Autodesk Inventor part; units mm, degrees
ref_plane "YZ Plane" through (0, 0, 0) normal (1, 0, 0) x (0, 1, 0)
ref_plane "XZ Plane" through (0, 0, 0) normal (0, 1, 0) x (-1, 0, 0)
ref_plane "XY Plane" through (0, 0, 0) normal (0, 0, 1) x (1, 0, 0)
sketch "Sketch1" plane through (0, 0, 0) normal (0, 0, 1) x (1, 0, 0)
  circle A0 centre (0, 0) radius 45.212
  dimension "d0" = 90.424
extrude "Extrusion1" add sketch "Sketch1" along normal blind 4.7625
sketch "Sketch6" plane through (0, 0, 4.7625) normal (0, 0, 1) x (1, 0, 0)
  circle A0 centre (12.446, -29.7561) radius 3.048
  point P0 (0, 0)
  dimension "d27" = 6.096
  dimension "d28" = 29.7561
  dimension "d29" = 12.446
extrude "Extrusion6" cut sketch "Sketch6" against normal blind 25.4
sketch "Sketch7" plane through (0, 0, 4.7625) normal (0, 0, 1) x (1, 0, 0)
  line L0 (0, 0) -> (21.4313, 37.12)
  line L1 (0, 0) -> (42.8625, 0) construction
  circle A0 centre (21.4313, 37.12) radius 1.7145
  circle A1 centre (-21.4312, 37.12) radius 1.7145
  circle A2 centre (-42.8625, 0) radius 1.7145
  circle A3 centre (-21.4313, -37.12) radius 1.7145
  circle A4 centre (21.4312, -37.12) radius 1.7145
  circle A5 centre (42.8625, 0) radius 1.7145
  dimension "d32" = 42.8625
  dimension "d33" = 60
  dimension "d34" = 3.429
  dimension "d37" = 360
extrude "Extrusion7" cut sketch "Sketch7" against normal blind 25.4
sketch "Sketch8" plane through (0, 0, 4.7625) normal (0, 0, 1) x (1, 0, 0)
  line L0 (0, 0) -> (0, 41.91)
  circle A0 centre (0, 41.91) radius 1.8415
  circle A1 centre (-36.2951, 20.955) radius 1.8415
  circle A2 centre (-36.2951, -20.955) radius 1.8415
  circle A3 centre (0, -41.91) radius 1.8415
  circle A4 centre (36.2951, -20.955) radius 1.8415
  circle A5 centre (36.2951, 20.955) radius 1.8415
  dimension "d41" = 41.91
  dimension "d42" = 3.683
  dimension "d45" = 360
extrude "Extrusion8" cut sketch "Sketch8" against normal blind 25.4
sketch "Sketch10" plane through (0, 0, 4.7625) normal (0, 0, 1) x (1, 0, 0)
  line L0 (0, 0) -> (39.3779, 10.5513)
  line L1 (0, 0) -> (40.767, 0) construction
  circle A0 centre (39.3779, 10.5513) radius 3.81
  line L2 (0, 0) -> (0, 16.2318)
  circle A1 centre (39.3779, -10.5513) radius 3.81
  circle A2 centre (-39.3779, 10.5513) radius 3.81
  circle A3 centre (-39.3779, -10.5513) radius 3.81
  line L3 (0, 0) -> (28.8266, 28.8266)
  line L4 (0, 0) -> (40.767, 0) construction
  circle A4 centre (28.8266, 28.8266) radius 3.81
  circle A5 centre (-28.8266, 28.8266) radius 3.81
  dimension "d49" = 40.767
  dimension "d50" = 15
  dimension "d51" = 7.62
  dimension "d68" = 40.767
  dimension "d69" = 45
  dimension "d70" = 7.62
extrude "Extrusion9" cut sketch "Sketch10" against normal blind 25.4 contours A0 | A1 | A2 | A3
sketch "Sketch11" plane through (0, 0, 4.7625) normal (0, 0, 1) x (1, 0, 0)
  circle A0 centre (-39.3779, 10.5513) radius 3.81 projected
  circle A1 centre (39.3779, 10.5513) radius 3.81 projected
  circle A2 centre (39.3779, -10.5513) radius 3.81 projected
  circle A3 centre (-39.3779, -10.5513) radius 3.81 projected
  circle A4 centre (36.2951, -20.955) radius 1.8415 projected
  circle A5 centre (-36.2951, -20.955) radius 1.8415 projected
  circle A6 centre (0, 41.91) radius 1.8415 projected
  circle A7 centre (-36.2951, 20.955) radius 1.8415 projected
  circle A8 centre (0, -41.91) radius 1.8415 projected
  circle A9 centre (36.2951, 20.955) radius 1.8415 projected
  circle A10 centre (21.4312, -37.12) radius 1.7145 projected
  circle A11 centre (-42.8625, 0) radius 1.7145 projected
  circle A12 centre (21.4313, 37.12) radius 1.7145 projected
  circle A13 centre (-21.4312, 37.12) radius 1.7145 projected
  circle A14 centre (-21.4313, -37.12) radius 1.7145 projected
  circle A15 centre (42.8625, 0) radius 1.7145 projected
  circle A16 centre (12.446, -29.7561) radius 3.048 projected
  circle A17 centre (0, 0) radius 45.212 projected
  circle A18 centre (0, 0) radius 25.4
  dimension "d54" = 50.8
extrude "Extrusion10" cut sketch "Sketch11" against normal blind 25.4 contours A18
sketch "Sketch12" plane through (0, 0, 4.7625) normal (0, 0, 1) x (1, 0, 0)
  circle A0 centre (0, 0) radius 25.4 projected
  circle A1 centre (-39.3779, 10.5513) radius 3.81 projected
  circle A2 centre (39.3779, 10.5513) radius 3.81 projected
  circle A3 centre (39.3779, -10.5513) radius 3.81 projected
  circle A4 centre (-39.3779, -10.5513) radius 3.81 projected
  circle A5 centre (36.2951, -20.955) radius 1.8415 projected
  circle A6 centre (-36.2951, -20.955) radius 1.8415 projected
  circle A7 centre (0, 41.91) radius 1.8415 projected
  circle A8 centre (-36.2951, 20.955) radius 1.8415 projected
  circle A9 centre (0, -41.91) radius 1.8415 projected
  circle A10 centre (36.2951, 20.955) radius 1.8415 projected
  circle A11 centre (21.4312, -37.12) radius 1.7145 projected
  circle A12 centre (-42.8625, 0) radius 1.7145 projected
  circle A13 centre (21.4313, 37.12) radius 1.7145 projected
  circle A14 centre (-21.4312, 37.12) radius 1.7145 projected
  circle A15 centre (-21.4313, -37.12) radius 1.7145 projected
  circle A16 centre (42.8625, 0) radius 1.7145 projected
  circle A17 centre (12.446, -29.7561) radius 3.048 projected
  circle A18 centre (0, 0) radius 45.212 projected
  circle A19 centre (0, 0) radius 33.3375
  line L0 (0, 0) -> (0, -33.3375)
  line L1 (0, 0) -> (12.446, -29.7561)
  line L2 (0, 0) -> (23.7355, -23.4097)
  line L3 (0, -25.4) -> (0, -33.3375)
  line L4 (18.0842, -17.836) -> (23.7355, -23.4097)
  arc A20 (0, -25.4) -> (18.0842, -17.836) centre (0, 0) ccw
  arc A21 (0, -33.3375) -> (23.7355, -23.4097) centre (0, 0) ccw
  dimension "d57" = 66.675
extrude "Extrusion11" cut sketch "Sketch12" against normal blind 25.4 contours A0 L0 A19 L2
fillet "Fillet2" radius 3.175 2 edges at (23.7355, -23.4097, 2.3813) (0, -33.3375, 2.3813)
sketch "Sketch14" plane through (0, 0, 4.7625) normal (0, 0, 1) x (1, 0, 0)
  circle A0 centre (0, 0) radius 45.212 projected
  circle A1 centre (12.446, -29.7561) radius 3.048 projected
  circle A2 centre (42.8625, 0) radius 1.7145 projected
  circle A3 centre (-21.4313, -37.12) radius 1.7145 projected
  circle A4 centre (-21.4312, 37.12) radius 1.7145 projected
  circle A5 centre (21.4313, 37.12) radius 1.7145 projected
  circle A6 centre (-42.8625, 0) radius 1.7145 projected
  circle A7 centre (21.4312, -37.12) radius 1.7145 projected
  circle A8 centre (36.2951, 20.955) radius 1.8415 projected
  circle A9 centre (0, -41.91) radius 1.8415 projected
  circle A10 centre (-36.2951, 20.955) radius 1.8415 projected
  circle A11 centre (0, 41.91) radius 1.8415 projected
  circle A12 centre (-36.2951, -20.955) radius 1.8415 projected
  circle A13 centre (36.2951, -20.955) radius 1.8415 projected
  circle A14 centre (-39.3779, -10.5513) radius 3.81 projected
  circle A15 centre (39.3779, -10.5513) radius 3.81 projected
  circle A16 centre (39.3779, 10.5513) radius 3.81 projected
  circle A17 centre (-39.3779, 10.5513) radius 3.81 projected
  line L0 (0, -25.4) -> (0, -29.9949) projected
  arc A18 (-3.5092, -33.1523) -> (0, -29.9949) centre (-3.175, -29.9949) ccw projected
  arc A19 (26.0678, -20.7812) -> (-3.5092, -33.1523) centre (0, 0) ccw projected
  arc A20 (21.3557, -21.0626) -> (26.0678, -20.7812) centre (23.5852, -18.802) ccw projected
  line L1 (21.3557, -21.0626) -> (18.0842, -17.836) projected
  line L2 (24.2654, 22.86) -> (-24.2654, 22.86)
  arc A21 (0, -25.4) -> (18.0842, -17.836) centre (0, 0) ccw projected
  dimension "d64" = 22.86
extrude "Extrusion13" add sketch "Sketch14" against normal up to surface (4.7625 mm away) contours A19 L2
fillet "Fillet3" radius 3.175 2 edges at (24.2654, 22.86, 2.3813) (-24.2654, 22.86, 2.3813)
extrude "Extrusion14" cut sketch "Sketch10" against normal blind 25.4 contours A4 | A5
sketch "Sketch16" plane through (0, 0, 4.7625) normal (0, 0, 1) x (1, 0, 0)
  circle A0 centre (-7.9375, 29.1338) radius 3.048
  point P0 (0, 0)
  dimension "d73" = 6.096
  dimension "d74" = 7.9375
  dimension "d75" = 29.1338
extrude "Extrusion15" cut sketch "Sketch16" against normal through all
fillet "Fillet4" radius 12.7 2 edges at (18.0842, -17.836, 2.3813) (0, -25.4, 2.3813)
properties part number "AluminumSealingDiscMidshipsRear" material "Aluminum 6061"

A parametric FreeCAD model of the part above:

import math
import FreeCAD as App
import Part
import Sketcher

V = App.Vector
Q = App.Units.Quantity


def edges_at(feature, points):
    """Names of the edges that pass closest to the given points."""
    edges = feature.Shape.Edges
    near = lambda p: min(range(len(edges)), key=lambda i: edges[i].distToShape(Part.Vertex(*p))[0])
    return sorted({f"Edge{near(p) + 1}" for p in points})

doc = App.newDocument("Part")
body = doc.addObject("PartDesign::Body", "Body")

# Sketch on XY plane
sketch1 = body.newObject("Sketcher::SketchObject", "Sketch")
sketch1.AttachmentSupport = (doc.getObject("XY_Plane"), [""])
sketch1.MapMode = "FlatFace"
sketch1.addGeometry(Part.Circle(V(0, 0, 0), V(0, 0, 1), 45), False)
sketch1.addConstraint([
    Sketcher.Constraint("Coincident", 0, 3, -1, 1),
    Sketcher.Constraint("Diameter", 0, Q("3.56 in")),
])
pad1 = body.newObject("PartDesign::Pad", "Pad")
pad1.Profile = sketch1
pad1.Length = Q("0.1875 in")

# Sketch on XY plane
sketch2 = body.newObject("Sketcher::SketchObject", "Sketch001")
sketch2.AttachmentSupport = (doc.getObject("XY_Plane"), [""])
sketch2.MapMode = "FlatFace"
sketch2.AttachmentOffset = App.Placement(V(0, 0, 0.1875 * 25.4), App.Rotation())
sketch2.addGeometry(Part.Circle(V(12.4, -29.8, 0), V(0, 0, 1), 3), False)
sketch2.addConstraint([
    Sketcher.Constraint("Diameter", 0, Q("0.24 in")),
    Sketcher.Constraint("DistanceX", -1, 1, 0, 3, Q("0.49 in")),
    Sketcher.Constraint("DistanceY", 0, 3, -1, 1, Q("1.1715 in")),
])
pocket1 = body.newObject("PartDesign::Pocket", "Pocket")
pocket1.Profile = sketch2
pocket1.Length = Q("1 in")

# Sketch on XY plane
sketch3 = body.newObject("Sketcher::SketchObject", "Sketch002")
sketch3.AttachmentSupport = (doc.getObject("XY_Plane"), [""])
sketch3.MapMode = "FlatFace"
sketch3.AttachmentOffset = App.Placement(V(0, 0, 0.1875 * 25.4), App.Rotation())
sketch3.addGeometry([
    Part.Circle(V(21.4, 37.1, 0), V(0, 0, 1), 1.7),  # 0
    Part.Circle(V(-21.4, 37.1, 0), V(0, 0, 1), 1.7),  # 1
    Part.Circle(V(-42.9, 0, 0), V(0, 0, 1), 1.7),  # 2
    Part.Circle(V(-21.4, -37.1, 0), V(0, 0, 1), 1.7),  # 3
    Part.Circle(V(21.4, -37.1, 0), V(0, 0, 1), 1.7),  # 4
    Part.Circle(V(42.9, 0, 0), V(0, 0, 1), 1.7),  # 5
], False)
sketch3.addConstraint([
    Sketcher.Constraint("Equal", 0, 1),
    Sketcher.Constraint("Equal", 1, 2),
    Sketcher.Constraint("Equal", 2, 3),
    Sketcher.Constraint("Equal", 3, 4),
    Sketcher.Constraint("Equal", 4, 5),
    Sketcher.Constraint("Symmetric", 0, 3, 3, 3, -1, 1),
    Sketcher.Constraint("Symmetric", 1, 3, 4, 3, -1, 1),
    Sketcher.Constraint("Symmetric", 2, 3, 5, 3, -1, 1),
    Sketcher.Constraint("Symmetric", 0, 3, 1, 3, -2),
    Sketcher.Constraint("PointOnObject", 2, 3, -1),
    Sketcher.Constraint("Diameter", 0, Q("0.135 in")),
    Sketcher.Constraint("DistanceX", 2, 3, -1, 1, Q("1.6875 in")),
    Sketcher.Constraint("DistanceX", 1, 3, 0, 3, Q("1.6875 in")),
    Sketcher.Constraint("DistanceY", -1, 1, 0, 3, 37.12),
])
pocket2 = body.newObject("PartDesign::Pocket", "Pocket001")
pocket2.Profile = sketch3
pocket2.Length = Q("1 in")

# Sketch on XY plane
sketch4 = body.newObject("Sketcher::SketchObject", "Sketch003")
sketch4.AttachmentSupport = (doc.getObject("XY_Plane"), [""])
sketch4.MapMode = "FlatFace"
sketch4.AttachmentOffset = App.Placement(V(0, 0, 0.1875 * 25.4), App.Rotation())
sketch4.addGeometry([
    Part.Circle(V(0, 41.9, 0), V(0, 0, 1), 1.8),  # 0
    Part.Circle(V(-36.3, 21, 0), V(0, 0, 1), 1.8),  # 1
    Part.Circle(V(-36.3, -21, 0), V(0, 0, 1), 1.8),  # 2
    Part.Circle(V(0, -41.9, 0), V(0, 0, 1), 1.8),  # 3
    Part.Circle(V(36.3, -21, 0), V(0, 0, 1), 1.8),  # 4
    Part.Circle(V(36.3, 21, 0), V(0, 0, 1), 1.8),  # 5
], False)
sketch4.addConstraint([
    Sketcher.Constraint("Equal", 0, 1),
    Sketcher.Constraint("Equal", 1, 2),
    Sketcher.Constraint("Equal", 2, 3),
    Sketcher.Constraint("Equal", 3, 4),
    Sketcher.Constraint("Equal", 4, 5),
    Sketcher.Constraint("Symmetric", 0, 3, 3, 3, -1, 1),
    Sketcher.Constraint("Symmetric", 1, 3, 4, 3, -1, 1),
    Sketcher.Constraint("Symmetric", 2, 3, 5, 3, -1, 1),
    Sketcher.Constraint("Symmetric", 2, 3, 4, 3, -2),
    Sketcher.Constraint("PointOnObject", 0, 3, -2),
    Sketcher.Constraint("Diameter", 0, Q("0.145 in")),
    Sketcher.Constraint("DistanceY", -1, 1, 0, 3, Q("1.65 in")),
    Sketcher.Constraint("DistanceY", 2, 3, 1, 3, Q("1.65 in")),
    Sketcher.Constraint("DistanceX", 1, 3, -1, 1, 36.295),
])
pocket3 = body.newObject("PartDesign::Pocket", "Pocket002")
pocket3.Profile = sketch4
pocket3.Length = Q("1 in")

# Sketch on XY plane
sketch5 = body.newObject("Sketcher::SketchObject", "Sketch004")
sketch5.AttachmentSupport = (doc.getObject("XY_Plane"), [""])
sketch5.MapMode = "FlatFace"
sketch5.AttachmentOffset = App.Placement(V(0, 0, 0.1875 * 25.4), App.Rotation())
sketch5.addGeometry([
    Part.Circle(V(39.4, 10.6, 0), V(0, 0, 1), 3.8),
    Part.Circle(V(39.4, -10.6, 0), V(0, 0, 1), 3.8),
    Part.Circle(V(-39.4, 10.6, 0), V(0, 0, 1), 3.8),
    Part.Circle(V(-39.4, -10.6, 0), V(0, 0, 1), 3.8),
], False)
sketch5.addConstraint([
    Sketcher.Constraint("Equal", 0, 1),
    Sketcher.Constraint("Equal", 1, 2),
    Sketcher.Constraint("Equal", 2, 3),
    Sketcher.Constraint("Symmetric", 1, 3, 2, 3, -1, 1),
    Sketcher.Constraint("Symmetric", 0, 3, 3, 3, -1, 1),
    Sketcher.Constraint("Symmetric", 0, 3, 2, 3, -2),
    Sketcher.Constraint("Diameter", 0, Q("0.3 in")),
    Sketcher.Constraint("DistanceX", -1, 1, 0, 3, Q("1.5503 in")),
    Sketcher.Constraint("DistanceY", -1, 1, 0, 3, Q("0.4154 in")),
])
pocket4 = body.newObject("PartDesign::Pocket", "Pocket003")
pocket4.Profile = sketch5
pocket4.Length = Q("1 in")

# Sketch on XY plane
sketch6 = body.newObject("Sketcher::SketchObject", "Sketch005")
sketch6.AttachmentSupport = (doc.getObject("XY_Plane"), [""])
sketch6.MapMode = "FlatFace"
sketch6.AttachmentOffset = App.Placement(V(0, 0, 0.1875 * 25.4), App.Rotation())
sketch6.addGeometry(Part.Circle(V(0, 0, 0), V(0, 0, 1), 25), False)
sketch6.addConstraint([
    Sketcher.Constraint("Coincident", 0, 3, -1, 1),
    Sketcher.Constraint("Diameter", 0, Q("2 in")),
])
pocket5 = body.newObject("PartDesign::Pocket", "Pocket004")
pocket5.Profile = sketch6
pocket5.Length = Q("1 in")

# Sketch on XY plane
sketch7 = body.newObject("Sketcher::SketchObject", "Sketch006")
sketch7.AttachmentSupport = (doc.getObject("XY_Plane"), [""])
sketch7.MapMode = "FlatFace"
sketch7.AttachmentOffset = App.Placement(V(0, 0, 0.1875 * 25.4), App.Rotation())
sketch7.addGeometry([
    Part.ArcOfCircle(Part.Circle(V(0, 0, 0), V(0, 0, 1), 25), math.radians(-45), math.radians(270)),
    Part.LineSegment(V(18, -18, 0), V(24, -23, 0)),
    Part.ArcOfCircle(Part.Circle(V(0, 0, 0), V(0, 0, 1), 33), math.radians(-45), math.radians(270)),
    Part.LineSegment(V(0, -33, 0), V(0, -25, 0)),
], False)
sketch7.addConstraint([
    Sketcher.Constraint("Coincident", 0, 1, 1, 1),
    Sketcher.Constraint("Coincident", 1, 2, 2, 1),
    Sketcher.Constraint("Coincident", 2, 2, 3, 1),
    Sketcher.Constraint("Coincident", 3, 2, 0, 2),
    Sketcher.Constraint("Vertical", 3),
    Sketcher.Constraint("Coincident", 0, 3, -1, 1),
    Sketcher.Constraint("Coincident", 2, 3, -1, 1),
    Sketcher.Constraint("PointOnObject", 2, 2, -2),
    Sketcher.Constraint("Radius", 0, Q("1 in")),
    Sketcher.Constraint("Radius", 2, Q("1.3125 in")),
    Sketcher.Constraint("DistanceY", 0, 1, -1, 1, Q("0.7022 in")),
    Sketcher.Constraint("DistanceX", 0, 1, 1, 2, Q("0.2225 in")),
])
pocket6 = body.newObject("PartDesign::Pocket", "Pocket005")
pocket6.Profile = sketch7
pocket6.Length = Q("1 in")
doc.recompute()

fillet = body.newObject("PartDesign::Fillet", "Fillet")
fillet.Base = (pocket6, edges_at(pocket6, [(23.735, -23.41, 2.381), (0, -33.337, 2.381)]))
fillet.Radius = Q("0.125 in")

# Sketch on XY plane
sketch8 = body.newObject("Sketcher::SketchObject", "Sketch007")
sketch8.AttachmentSupport = (doc.getObject("XY_Plane"), [""])
sketch8.MapMode = "FlatFace"
sketch8.AttachmentOffset = App.Placement(V(0, 0, 0.1875 * 25.4), App.Rotation())
sketch8.addGeometry([
    Part.ArcOfCircle(Part.Circle(V(0, 0, 0), V(0, 0, 1), 33), math.radians(43), math.radians(137)),
    Part.LineSegment(V(24, 23, 0), V(-24, 23, 0)),
], False)
sketch8.addConstraint([
    Sketcher.Constraint("Coincident", 0, 1, 1, 1),
    Sketcher.Constraint("Coincident", 1, 2, 0, 2),
    Sketcher.Constraint("Horizontal", 1),
    Sketcher.Constraint("Coincident", 0, 3, -1, 1),
    Sketcher.Constraint("DistanceY", -1, 1, 0, 1, Q("0.9 in")),
    Sketcher.Constraint("Radius", 0, Q("1.3125 in")),
])
pad2 = body.newObject("PartDesign::Pad", "Pad001")
pad2.Profile = sketch8
pad2.Length = Q("0.1875 in")
pad2.Reversed = True
doc.recompute()

fillet2 = body.newObject("PartDesign::Fillet", "Fillet001")
fillet2.Base = (pad2, edges_at(pad2, [(24.265, 22.86, 2.381), (-24.265, 22.86, 2.381)]))
fillet2.Radius = Q("0.125 in")

# Sketch on XY plane
sketch9 = body.newObject("Sketcher::SketchObject", "Sketch008")
sketch9.AttachmentSupport = (doc.getObject("XY_Plane"), [""])
sketch9.MapMode = "FlatFace"
sketch9.AttachmentOffset = App.Placement(V(0, 0, 0.1875 * 25.4), App.Rotation())
sketch9.addGeometry([
    Part.Circle(V(28.8, 28.8, 0), V(0, 0, 1), 3.8),
    Part.Circle(V(-28.8, 28.8, 0), V(0, 0, 1), 3.8),
], False)
sketch9.addConstraint([
    Sketcher.Constraint("Equal", 0, 1),
    Sketcher.Constraint("Symmetric", 0, 3, 1, 3, -2),
    Sketcher.Constraint("Diameter", 0, Q("0.3 in")),
    Sketcher.Constraint("DistanceX", -1, 1, 0, 3, Q("1.1349 in")),
    Sketcher.Constraint("DistanceY", -1, 1, 0, 3, Q("1.1349 in")),
])
pocket7 = body.newObject("PartDesign::Pocket", "Pocket006")
pocket7.Profile = sketch9
pocket7.Length = Q("1 in")

# Sketch on XY plane
sketch10 = body.newObject("Sketcher::SketchObject", "Sketch009")
sketch10.AttachmentSupport = (doc.getObject("XY_Plane"), [""])
sketch10.MapMode = "FlatFace"
sketch10.AttachmentOffset = App.Placement(V(0, 0, 0.1875 * 25.4), App.Rotation())
sketch10.addGeometry(Part.Circle(V(-7.9, 29.1, 0), V(0, 0, 1), 3), False)
sketch10.addConstraint([
    Sketcher.Constraint("Diameter", 0, Q("0.24 in")),
    Sketcher.Constraint("DistanceX", 0, 3, -1, 1, Q("0.3125 in")),
    Sketcher.Constraint("DistanceY", -1, 1, 0, 3, Q("1.147 in")),
])
pocket8 = body.newObject("PartDesign::Pocket", "Pocket007")
pocket8.Profile = sketch10
pocket8.Type = "ThroughAll"
doc.recompute()

fillet3 = body.newObject("PartDesign::Fillet", "Fillet002")
fillet3.Base = (pocket8, edges_at(pocket8, [(18.084, -17.836, 2.381), (0, -25.4, 2.381)]))
fillet3.Radius = Q("0.5 in")

doc.recompute()
